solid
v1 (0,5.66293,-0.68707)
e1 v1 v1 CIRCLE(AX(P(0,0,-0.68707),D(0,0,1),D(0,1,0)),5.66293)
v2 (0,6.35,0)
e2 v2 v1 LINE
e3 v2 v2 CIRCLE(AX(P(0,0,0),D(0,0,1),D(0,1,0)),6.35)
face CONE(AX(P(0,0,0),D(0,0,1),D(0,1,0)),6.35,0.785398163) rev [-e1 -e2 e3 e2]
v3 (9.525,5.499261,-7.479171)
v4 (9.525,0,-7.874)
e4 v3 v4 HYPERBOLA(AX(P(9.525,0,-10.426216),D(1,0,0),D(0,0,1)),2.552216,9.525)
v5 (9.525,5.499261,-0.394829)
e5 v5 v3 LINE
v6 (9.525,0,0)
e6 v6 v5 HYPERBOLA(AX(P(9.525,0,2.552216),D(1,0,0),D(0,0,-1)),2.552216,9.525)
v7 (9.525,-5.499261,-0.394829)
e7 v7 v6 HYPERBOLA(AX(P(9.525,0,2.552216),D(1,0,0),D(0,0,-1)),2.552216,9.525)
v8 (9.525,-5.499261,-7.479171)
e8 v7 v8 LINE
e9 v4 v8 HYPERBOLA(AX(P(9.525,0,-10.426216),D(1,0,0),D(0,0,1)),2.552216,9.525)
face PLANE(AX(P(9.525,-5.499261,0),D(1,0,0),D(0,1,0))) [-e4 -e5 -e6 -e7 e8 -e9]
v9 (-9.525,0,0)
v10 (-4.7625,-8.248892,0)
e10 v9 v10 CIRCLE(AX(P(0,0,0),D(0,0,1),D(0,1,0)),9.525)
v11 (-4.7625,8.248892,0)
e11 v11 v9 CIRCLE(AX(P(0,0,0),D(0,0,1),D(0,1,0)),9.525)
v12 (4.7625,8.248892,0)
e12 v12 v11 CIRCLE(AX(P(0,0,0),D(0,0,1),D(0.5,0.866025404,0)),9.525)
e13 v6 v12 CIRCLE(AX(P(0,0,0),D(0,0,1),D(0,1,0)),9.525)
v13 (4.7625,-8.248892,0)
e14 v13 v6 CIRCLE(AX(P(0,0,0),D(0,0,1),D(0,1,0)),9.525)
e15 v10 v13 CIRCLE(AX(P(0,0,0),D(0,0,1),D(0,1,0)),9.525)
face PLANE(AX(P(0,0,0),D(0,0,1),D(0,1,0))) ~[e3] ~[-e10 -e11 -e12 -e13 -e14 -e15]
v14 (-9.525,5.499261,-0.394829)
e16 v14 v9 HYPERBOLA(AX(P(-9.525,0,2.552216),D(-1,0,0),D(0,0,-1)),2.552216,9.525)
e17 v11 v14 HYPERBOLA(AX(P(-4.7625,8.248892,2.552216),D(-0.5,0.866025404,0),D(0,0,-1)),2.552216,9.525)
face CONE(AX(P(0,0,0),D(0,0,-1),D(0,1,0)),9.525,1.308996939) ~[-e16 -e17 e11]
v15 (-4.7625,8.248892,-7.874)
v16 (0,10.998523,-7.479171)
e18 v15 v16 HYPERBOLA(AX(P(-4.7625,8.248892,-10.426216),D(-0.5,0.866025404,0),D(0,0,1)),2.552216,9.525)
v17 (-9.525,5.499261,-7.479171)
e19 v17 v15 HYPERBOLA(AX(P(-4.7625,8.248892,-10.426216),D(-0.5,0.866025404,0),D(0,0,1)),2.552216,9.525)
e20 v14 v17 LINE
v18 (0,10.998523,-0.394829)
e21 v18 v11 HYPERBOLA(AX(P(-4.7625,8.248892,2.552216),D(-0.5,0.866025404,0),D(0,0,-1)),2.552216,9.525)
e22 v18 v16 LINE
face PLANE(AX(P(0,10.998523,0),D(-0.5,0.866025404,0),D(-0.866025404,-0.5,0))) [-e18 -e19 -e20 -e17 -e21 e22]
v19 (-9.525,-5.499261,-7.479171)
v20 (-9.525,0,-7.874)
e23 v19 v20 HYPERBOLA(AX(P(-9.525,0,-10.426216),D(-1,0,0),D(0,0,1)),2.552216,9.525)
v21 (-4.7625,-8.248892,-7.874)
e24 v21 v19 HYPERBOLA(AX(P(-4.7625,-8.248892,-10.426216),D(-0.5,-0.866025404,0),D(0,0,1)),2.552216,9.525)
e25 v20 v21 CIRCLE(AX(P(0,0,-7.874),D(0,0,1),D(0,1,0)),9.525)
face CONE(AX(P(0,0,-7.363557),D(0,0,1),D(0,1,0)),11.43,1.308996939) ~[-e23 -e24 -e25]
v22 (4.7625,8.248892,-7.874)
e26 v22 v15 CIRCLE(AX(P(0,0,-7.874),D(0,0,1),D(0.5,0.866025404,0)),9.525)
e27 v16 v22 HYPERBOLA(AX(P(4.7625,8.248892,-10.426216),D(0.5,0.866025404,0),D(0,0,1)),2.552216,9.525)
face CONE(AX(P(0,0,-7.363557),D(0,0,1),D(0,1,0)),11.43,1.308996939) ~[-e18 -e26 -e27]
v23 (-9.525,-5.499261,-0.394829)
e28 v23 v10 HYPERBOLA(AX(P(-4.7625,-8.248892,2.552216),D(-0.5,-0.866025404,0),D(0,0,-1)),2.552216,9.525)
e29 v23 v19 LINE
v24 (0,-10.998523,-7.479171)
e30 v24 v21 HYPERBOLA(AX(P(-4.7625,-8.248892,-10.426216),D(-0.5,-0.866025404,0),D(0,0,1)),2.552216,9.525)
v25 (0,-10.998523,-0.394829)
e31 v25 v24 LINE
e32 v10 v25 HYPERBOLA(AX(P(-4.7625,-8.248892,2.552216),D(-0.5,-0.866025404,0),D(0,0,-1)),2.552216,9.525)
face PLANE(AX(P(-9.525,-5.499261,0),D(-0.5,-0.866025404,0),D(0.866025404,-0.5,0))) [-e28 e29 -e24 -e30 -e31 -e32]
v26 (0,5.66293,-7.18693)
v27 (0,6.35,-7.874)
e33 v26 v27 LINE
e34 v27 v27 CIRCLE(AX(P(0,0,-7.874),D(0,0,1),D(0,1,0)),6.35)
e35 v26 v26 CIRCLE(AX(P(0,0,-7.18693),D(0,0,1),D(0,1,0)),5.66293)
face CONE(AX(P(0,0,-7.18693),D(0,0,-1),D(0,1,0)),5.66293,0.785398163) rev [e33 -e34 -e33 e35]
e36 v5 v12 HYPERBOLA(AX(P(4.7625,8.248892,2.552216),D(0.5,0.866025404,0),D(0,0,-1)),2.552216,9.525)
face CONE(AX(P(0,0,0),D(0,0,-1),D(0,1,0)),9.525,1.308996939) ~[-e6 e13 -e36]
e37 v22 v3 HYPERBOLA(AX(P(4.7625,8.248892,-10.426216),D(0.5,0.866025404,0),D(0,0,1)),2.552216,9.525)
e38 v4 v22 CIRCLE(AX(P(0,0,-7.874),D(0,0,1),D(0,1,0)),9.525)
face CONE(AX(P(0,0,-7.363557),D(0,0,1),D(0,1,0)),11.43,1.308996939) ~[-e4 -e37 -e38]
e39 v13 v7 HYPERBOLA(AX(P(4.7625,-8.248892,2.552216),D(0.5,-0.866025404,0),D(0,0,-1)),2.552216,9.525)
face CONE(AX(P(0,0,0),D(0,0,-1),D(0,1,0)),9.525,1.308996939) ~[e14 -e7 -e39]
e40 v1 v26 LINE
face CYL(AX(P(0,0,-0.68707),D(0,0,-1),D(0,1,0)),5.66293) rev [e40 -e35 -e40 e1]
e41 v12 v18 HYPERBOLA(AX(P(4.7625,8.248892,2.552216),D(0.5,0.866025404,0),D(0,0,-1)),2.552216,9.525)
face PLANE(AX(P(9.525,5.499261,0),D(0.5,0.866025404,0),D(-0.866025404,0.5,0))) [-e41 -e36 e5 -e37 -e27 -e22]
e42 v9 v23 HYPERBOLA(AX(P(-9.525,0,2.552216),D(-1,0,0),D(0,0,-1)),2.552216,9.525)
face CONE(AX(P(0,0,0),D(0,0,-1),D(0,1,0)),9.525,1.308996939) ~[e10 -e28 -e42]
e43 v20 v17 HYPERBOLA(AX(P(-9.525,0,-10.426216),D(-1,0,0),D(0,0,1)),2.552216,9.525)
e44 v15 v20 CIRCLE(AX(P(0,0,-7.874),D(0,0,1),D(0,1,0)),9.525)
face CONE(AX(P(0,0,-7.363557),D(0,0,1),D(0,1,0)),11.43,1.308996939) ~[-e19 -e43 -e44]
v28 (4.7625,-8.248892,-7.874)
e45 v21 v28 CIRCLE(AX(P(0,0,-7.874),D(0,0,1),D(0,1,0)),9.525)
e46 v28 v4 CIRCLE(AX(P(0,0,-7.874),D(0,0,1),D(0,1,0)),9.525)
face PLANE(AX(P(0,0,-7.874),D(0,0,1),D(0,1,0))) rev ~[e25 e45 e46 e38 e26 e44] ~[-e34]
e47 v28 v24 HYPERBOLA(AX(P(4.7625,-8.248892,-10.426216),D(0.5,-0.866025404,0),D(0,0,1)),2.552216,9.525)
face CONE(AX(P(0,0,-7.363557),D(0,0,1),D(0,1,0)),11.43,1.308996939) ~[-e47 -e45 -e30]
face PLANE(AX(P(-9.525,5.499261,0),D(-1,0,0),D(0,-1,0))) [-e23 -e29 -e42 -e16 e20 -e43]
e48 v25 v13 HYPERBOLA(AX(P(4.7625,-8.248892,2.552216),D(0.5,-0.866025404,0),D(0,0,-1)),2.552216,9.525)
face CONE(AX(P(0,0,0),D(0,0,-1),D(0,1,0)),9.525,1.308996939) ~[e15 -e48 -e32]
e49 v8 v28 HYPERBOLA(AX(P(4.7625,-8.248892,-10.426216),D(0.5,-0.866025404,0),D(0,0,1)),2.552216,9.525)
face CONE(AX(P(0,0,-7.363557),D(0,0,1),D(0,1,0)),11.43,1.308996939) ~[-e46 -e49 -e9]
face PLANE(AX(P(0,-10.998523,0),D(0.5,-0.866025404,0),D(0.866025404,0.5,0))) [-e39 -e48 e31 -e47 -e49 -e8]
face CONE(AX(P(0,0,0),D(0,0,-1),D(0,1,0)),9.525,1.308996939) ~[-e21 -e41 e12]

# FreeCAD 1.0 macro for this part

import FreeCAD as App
import Part
import Sketcher
from FreeCAD import Vector
Q = App.Units.Quantity


def add_polygon(sketch, points):
    """Adds a closed chain of lines whose ends are joined by coincident constraints."""
    first, n = sketch.GeometryCount, len(points)
    for a, b in zip(points, points[1:] + points[:1]):
        sketch.addGeometry(Part.LineSegment(App.Vector(*a, 0), App.Vector(*b, 0)), False)
    for i in range(n):
        sketch.addConstraint(Sketcher.Constraint("Coincident", first + i, 2, first + (i + 1) % n, 1))

doc = App.newDocument("Part")
body = doc.addObject("PartDesign::Body", "Body")

sketch1 = body.newObject("Sketcher::SketchObject", "Sketch")
sketch1.AttachmentSupport = (doc.getObject("YZ_Plane"), [""])
sketch1.MapMode = "FlatFace"
add_polygon(sketch1, [(9.5, 0), (0, 0), (0, -7.9), (9.5, -7.9), (11.4, -7.4), (11.4, -0.5)])
sketch1.addConstraint([
    Sketcher.Constraint("Horizontal", 0),
    Sketcher.Constraint("Vertical", 1),
    Sketcher.Constraint("Horizontal", 2),
    Sketcher.Constraint("Vertical", 4),
    Sketcher.Constraint("Coincident", 0, 2, -1, 1),
    Sketcher.Constraint("Vertical", 2, 2, 5, 2),
    Sketcher.Constraint("Equal", 3, 5),
    Sketcher.Constraint("Angle", 3, Q("15 deg")),
    Sketcher.Constraint("DistanceY", 1, 2, 1, 1, Q("0.31 in")),
    Sketcher.Constraint("DistanceX", 0, 2, 0, 1, Q("0.375 in")),
    Sketcher.Constraint("DistanceX", -1, 1, 3, 2, Q("0.45 in")),
])
revolution = body.newObject("PartDesign::Revolution", "Revolution")
revolution.Profile = sketch1
revolution.ReferenceAxis = (sketch1, ["V_Axis"])
revolution.Angle = 360

sketch2 = body.newObject("Sketcher::SketchObject", "Sketch001")
sketch2.AttachmentSupport = (doc.getObject("XY_Plane"), [""])
sketch2.MapMode = "FlatFace"
add_polygon(sketch2, [(-19, 19), (-19, -19), (19, -19), (19, 19)])
add_polygon(sketch2, [(-10, -5), (-10, 5), (0, 11), (10, 5), (10, -5), (0, -11)])
sketch2.addConstraint([
    Sketcher.Constraint("Vertical", 0),
    Sketcher.Constraint("Horizontal", 1),
    Sketcher.Constraint("Vertical", 2),
    Sketcher.Constraint("Horizontal", 3),
    Sketcher.Constraint("Vertical", 4),
    Sketcher.Constraint("Vertical", 7),
    Sketcher.Constraint("Symmetric", 0, 2, 2, 2, -1, 1),
    Sketcher.Constraint("Symmetric", 4, 2, 7, 2, -1, 1),
    Sketcher.Constraint("Symmetric", 5, 2, 8, 2, -1, 1),
    Sketcher.Constraint("PointOnObject", 5, 2, -2),
    Sketcher.Constraint("Parallel", 6, 9),
    Sketcher.Constraint("Horizontal", 4, 2, 6, 2),
    Sketcher.Constraint("Equal", 3, 0),
    Sketcher.Constraint("DistanceX", 1, 1, 1, 2, Q("1.5 in")),
    Sketcher.Constraint("Angle", 5, Q("30 deg")),
    Sketcher.Constraint("DistanceX", 4, 2, 6, 2, Q("0.75 in")),
    Sketcher.Constraint("DistanceY", 4, 1, 4, 2, Q("10.998523 mm")),
])
pocket1 = body.newObject("PartDesign::Pocket", "Pocket")
pocket1.Profile = sketch2
pocket1.Length = Q("0.31 in")

sketch3 = body.newObject("Sketcher::SketchObject", "Sketch002")
sketch3.AttachmentSupport = (doc.getObject("YZ_Plane"), [""])
sketch3.MapMode = "FlatFace"
add_polygon(sketch3, [(6.3, 0), (0, 0), (0, -7.9), (6.3, -7.9), (5.7, -7.2), (5.7, -0.7)])
sketch3.addConstraint([
    Sketcher.Constraint("Horizontal", 0),
    Sketcher.Constraint("Vertical", 1),
    Sketcher.Constraint("Horizontal", 2),
    Sketcher.Constraint("Vertical", 4),
    Sketcher.Constraint("Coincident", 0, 2, -1, 1),
    Sketcher.Constraint("Perpendicular", 3, 5),
    Sketcher.Constraint("Vertical", 2, 2, 5, 2),
    Sketcher.Constraint("Equal", 3, 5),
    Sketcher.Constraint("DistanceX", 0, 2, 0, 1, Q("0.25 in")),
    Sketcher.Constraint("DistanceY", 1, 2, 1, 1, Q("0.31 in")),
    Sketcher.Constraint("DistanceY", 4, 1, 4, 2, Q("0.2559 in")),
])
groove = body.newObject("PartDesign::Groove", "Groove")
groove.Profile = sketch3
groove.ReferenceAxis = (sketch3, ["V_Axis"])
groove.Angle = 360

doc.recompute()
